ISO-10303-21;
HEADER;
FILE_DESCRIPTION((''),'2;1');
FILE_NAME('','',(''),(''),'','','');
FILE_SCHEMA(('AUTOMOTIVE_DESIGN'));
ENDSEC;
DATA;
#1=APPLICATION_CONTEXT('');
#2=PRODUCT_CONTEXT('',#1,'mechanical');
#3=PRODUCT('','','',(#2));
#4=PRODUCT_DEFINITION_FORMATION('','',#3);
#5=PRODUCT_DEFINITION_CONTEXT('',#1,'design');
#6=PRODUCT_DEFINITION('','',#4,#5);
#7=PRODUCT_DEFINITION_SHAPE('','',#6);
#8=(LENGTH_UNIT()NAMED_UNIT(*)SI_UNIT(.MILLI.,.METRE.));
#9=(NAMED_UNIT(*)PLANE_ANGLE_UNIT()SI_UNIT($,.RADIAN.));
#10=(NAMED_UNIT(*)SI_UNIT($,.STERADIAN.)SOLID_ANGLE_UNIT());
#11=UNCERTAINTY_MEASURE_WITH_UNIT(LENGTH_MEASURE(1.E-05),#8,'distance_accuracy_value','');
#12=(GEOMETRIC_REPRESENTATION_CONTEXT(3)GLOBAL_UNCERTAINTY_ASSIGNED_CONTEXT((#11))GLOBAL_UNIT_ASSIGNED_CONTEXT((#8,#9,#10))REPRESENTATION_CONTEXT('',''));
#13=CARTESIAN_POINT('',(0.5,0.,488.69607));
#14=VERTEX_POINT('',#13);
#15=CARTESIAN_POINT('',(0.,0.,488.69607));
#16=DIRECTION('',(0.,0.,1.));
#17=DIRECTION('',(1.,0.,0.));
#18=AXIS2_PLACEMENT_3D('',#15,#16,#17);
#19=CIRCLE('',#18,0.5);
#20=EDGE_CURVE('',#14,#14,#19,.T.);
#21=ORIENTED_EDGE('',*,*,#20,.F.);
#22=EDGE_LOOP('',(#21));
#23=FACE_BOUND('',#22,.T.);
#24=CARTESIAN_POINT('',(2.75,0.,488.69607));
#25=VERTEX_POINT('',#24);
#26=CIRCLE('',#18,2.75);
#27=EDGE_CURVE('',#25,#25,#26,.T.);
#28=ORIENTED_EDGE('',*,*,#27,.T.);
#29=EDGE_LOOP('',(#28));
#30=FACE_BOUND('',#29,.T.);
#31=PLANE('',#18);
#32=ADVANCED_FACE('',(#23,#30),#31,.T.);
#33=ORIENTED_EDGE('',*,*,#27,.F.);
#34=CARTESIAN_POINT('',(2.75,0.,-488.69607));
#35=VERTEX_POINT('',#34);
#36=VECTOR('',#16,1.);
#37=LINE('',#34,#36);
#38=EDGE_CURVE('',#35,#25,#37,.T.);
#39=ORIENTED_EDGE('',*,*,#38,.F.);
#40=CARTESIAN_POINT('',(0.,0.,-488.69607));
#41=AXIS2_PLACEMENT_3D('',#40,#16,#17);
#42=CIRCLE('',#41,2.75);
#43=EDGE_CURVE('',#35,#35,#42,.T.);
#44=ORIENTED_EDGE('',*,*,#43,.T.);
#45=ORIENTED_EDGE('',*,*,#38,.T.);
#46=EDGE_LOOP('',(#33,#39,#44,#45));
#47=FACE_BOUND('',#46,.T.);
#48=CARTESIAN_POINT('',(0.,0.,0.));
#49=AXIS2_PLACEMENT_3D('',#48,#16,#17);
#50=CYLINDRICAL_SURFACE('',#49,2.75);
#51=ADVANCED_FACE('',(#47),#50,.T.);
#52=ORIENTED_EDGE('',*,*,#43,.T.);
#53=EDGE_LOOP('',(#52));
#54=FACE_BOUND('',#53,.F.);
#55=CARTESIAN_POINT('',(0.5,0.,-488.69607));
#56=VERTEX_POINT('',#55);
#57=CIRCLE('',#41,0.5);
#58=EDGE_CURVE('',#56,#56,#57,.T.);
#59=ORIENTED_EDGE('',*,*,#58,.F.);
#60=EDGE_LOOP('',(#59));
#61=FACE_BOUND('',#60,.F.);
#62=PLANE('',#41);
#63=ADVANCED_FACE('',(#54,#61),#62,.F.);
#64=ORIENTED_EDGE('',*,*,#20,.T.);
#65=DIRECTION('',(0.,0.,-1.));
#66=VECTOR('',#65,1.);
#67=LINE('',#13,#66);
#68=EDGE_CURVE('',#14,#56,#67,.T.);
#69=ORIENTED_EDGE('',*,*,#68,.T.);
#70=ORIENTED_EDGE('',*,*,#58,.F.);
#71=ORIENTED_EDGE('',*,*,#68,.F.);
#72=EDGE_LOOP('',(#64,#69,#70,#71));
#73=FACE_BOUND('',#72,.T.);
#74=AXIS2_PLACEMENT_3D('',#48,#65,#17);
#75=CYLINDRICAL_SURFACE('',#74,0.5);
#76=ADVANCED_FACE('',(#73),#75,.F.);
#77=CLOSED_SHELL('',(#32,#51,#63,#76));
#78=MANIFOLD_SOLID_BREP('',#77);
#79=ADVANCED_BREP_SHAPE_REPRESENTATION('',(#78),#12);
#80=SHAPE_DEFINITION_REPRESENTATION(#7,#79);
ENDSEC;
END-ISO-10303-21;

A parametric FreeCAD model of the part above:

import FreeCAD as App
import Part
import Sketcher
from FreeCAD import Vector
Q = App.Units.Quantity

doc = App.newDocument("Part")
body = doc.addObject("PartDesign::Body", "Body")

# Sketch on XY plane
sketch1 = body.newObject("Sketcher::SketchObject", "Sketch")
sketch1.AttachmentSupport = (doc.getObject("XY_Plane"), [""])
sketch1.MapMode = "FlatFace"
sketch1.addGeometry([
    Part.Circle(Vector(0, 0, 0), Vector(0, 0, 1), 2.8),
    Part.Circle(Vector(0, 0, 0), Vector(0, 0, 1), 0.5),
], False)
sketch1.addConstraint([
    Sketcher.Constraint("Coincident", 0, 3, -1, 1),
    Sketcher.Constraint("Coincident", 1, 3, -1, 1),
    Sketcher.Constraint("Diameter", 1, Q("1 mm")),
    Sketcher.Constraint("Diameter", 0, Q("5.5 mm")),
])
pad1 = body.newObject("PartDesign::Pad", "Pad")
pad1.Profile = sketch1
pad1.Length = 977.39214
pad1.Midplane = True

doc.recompute()
